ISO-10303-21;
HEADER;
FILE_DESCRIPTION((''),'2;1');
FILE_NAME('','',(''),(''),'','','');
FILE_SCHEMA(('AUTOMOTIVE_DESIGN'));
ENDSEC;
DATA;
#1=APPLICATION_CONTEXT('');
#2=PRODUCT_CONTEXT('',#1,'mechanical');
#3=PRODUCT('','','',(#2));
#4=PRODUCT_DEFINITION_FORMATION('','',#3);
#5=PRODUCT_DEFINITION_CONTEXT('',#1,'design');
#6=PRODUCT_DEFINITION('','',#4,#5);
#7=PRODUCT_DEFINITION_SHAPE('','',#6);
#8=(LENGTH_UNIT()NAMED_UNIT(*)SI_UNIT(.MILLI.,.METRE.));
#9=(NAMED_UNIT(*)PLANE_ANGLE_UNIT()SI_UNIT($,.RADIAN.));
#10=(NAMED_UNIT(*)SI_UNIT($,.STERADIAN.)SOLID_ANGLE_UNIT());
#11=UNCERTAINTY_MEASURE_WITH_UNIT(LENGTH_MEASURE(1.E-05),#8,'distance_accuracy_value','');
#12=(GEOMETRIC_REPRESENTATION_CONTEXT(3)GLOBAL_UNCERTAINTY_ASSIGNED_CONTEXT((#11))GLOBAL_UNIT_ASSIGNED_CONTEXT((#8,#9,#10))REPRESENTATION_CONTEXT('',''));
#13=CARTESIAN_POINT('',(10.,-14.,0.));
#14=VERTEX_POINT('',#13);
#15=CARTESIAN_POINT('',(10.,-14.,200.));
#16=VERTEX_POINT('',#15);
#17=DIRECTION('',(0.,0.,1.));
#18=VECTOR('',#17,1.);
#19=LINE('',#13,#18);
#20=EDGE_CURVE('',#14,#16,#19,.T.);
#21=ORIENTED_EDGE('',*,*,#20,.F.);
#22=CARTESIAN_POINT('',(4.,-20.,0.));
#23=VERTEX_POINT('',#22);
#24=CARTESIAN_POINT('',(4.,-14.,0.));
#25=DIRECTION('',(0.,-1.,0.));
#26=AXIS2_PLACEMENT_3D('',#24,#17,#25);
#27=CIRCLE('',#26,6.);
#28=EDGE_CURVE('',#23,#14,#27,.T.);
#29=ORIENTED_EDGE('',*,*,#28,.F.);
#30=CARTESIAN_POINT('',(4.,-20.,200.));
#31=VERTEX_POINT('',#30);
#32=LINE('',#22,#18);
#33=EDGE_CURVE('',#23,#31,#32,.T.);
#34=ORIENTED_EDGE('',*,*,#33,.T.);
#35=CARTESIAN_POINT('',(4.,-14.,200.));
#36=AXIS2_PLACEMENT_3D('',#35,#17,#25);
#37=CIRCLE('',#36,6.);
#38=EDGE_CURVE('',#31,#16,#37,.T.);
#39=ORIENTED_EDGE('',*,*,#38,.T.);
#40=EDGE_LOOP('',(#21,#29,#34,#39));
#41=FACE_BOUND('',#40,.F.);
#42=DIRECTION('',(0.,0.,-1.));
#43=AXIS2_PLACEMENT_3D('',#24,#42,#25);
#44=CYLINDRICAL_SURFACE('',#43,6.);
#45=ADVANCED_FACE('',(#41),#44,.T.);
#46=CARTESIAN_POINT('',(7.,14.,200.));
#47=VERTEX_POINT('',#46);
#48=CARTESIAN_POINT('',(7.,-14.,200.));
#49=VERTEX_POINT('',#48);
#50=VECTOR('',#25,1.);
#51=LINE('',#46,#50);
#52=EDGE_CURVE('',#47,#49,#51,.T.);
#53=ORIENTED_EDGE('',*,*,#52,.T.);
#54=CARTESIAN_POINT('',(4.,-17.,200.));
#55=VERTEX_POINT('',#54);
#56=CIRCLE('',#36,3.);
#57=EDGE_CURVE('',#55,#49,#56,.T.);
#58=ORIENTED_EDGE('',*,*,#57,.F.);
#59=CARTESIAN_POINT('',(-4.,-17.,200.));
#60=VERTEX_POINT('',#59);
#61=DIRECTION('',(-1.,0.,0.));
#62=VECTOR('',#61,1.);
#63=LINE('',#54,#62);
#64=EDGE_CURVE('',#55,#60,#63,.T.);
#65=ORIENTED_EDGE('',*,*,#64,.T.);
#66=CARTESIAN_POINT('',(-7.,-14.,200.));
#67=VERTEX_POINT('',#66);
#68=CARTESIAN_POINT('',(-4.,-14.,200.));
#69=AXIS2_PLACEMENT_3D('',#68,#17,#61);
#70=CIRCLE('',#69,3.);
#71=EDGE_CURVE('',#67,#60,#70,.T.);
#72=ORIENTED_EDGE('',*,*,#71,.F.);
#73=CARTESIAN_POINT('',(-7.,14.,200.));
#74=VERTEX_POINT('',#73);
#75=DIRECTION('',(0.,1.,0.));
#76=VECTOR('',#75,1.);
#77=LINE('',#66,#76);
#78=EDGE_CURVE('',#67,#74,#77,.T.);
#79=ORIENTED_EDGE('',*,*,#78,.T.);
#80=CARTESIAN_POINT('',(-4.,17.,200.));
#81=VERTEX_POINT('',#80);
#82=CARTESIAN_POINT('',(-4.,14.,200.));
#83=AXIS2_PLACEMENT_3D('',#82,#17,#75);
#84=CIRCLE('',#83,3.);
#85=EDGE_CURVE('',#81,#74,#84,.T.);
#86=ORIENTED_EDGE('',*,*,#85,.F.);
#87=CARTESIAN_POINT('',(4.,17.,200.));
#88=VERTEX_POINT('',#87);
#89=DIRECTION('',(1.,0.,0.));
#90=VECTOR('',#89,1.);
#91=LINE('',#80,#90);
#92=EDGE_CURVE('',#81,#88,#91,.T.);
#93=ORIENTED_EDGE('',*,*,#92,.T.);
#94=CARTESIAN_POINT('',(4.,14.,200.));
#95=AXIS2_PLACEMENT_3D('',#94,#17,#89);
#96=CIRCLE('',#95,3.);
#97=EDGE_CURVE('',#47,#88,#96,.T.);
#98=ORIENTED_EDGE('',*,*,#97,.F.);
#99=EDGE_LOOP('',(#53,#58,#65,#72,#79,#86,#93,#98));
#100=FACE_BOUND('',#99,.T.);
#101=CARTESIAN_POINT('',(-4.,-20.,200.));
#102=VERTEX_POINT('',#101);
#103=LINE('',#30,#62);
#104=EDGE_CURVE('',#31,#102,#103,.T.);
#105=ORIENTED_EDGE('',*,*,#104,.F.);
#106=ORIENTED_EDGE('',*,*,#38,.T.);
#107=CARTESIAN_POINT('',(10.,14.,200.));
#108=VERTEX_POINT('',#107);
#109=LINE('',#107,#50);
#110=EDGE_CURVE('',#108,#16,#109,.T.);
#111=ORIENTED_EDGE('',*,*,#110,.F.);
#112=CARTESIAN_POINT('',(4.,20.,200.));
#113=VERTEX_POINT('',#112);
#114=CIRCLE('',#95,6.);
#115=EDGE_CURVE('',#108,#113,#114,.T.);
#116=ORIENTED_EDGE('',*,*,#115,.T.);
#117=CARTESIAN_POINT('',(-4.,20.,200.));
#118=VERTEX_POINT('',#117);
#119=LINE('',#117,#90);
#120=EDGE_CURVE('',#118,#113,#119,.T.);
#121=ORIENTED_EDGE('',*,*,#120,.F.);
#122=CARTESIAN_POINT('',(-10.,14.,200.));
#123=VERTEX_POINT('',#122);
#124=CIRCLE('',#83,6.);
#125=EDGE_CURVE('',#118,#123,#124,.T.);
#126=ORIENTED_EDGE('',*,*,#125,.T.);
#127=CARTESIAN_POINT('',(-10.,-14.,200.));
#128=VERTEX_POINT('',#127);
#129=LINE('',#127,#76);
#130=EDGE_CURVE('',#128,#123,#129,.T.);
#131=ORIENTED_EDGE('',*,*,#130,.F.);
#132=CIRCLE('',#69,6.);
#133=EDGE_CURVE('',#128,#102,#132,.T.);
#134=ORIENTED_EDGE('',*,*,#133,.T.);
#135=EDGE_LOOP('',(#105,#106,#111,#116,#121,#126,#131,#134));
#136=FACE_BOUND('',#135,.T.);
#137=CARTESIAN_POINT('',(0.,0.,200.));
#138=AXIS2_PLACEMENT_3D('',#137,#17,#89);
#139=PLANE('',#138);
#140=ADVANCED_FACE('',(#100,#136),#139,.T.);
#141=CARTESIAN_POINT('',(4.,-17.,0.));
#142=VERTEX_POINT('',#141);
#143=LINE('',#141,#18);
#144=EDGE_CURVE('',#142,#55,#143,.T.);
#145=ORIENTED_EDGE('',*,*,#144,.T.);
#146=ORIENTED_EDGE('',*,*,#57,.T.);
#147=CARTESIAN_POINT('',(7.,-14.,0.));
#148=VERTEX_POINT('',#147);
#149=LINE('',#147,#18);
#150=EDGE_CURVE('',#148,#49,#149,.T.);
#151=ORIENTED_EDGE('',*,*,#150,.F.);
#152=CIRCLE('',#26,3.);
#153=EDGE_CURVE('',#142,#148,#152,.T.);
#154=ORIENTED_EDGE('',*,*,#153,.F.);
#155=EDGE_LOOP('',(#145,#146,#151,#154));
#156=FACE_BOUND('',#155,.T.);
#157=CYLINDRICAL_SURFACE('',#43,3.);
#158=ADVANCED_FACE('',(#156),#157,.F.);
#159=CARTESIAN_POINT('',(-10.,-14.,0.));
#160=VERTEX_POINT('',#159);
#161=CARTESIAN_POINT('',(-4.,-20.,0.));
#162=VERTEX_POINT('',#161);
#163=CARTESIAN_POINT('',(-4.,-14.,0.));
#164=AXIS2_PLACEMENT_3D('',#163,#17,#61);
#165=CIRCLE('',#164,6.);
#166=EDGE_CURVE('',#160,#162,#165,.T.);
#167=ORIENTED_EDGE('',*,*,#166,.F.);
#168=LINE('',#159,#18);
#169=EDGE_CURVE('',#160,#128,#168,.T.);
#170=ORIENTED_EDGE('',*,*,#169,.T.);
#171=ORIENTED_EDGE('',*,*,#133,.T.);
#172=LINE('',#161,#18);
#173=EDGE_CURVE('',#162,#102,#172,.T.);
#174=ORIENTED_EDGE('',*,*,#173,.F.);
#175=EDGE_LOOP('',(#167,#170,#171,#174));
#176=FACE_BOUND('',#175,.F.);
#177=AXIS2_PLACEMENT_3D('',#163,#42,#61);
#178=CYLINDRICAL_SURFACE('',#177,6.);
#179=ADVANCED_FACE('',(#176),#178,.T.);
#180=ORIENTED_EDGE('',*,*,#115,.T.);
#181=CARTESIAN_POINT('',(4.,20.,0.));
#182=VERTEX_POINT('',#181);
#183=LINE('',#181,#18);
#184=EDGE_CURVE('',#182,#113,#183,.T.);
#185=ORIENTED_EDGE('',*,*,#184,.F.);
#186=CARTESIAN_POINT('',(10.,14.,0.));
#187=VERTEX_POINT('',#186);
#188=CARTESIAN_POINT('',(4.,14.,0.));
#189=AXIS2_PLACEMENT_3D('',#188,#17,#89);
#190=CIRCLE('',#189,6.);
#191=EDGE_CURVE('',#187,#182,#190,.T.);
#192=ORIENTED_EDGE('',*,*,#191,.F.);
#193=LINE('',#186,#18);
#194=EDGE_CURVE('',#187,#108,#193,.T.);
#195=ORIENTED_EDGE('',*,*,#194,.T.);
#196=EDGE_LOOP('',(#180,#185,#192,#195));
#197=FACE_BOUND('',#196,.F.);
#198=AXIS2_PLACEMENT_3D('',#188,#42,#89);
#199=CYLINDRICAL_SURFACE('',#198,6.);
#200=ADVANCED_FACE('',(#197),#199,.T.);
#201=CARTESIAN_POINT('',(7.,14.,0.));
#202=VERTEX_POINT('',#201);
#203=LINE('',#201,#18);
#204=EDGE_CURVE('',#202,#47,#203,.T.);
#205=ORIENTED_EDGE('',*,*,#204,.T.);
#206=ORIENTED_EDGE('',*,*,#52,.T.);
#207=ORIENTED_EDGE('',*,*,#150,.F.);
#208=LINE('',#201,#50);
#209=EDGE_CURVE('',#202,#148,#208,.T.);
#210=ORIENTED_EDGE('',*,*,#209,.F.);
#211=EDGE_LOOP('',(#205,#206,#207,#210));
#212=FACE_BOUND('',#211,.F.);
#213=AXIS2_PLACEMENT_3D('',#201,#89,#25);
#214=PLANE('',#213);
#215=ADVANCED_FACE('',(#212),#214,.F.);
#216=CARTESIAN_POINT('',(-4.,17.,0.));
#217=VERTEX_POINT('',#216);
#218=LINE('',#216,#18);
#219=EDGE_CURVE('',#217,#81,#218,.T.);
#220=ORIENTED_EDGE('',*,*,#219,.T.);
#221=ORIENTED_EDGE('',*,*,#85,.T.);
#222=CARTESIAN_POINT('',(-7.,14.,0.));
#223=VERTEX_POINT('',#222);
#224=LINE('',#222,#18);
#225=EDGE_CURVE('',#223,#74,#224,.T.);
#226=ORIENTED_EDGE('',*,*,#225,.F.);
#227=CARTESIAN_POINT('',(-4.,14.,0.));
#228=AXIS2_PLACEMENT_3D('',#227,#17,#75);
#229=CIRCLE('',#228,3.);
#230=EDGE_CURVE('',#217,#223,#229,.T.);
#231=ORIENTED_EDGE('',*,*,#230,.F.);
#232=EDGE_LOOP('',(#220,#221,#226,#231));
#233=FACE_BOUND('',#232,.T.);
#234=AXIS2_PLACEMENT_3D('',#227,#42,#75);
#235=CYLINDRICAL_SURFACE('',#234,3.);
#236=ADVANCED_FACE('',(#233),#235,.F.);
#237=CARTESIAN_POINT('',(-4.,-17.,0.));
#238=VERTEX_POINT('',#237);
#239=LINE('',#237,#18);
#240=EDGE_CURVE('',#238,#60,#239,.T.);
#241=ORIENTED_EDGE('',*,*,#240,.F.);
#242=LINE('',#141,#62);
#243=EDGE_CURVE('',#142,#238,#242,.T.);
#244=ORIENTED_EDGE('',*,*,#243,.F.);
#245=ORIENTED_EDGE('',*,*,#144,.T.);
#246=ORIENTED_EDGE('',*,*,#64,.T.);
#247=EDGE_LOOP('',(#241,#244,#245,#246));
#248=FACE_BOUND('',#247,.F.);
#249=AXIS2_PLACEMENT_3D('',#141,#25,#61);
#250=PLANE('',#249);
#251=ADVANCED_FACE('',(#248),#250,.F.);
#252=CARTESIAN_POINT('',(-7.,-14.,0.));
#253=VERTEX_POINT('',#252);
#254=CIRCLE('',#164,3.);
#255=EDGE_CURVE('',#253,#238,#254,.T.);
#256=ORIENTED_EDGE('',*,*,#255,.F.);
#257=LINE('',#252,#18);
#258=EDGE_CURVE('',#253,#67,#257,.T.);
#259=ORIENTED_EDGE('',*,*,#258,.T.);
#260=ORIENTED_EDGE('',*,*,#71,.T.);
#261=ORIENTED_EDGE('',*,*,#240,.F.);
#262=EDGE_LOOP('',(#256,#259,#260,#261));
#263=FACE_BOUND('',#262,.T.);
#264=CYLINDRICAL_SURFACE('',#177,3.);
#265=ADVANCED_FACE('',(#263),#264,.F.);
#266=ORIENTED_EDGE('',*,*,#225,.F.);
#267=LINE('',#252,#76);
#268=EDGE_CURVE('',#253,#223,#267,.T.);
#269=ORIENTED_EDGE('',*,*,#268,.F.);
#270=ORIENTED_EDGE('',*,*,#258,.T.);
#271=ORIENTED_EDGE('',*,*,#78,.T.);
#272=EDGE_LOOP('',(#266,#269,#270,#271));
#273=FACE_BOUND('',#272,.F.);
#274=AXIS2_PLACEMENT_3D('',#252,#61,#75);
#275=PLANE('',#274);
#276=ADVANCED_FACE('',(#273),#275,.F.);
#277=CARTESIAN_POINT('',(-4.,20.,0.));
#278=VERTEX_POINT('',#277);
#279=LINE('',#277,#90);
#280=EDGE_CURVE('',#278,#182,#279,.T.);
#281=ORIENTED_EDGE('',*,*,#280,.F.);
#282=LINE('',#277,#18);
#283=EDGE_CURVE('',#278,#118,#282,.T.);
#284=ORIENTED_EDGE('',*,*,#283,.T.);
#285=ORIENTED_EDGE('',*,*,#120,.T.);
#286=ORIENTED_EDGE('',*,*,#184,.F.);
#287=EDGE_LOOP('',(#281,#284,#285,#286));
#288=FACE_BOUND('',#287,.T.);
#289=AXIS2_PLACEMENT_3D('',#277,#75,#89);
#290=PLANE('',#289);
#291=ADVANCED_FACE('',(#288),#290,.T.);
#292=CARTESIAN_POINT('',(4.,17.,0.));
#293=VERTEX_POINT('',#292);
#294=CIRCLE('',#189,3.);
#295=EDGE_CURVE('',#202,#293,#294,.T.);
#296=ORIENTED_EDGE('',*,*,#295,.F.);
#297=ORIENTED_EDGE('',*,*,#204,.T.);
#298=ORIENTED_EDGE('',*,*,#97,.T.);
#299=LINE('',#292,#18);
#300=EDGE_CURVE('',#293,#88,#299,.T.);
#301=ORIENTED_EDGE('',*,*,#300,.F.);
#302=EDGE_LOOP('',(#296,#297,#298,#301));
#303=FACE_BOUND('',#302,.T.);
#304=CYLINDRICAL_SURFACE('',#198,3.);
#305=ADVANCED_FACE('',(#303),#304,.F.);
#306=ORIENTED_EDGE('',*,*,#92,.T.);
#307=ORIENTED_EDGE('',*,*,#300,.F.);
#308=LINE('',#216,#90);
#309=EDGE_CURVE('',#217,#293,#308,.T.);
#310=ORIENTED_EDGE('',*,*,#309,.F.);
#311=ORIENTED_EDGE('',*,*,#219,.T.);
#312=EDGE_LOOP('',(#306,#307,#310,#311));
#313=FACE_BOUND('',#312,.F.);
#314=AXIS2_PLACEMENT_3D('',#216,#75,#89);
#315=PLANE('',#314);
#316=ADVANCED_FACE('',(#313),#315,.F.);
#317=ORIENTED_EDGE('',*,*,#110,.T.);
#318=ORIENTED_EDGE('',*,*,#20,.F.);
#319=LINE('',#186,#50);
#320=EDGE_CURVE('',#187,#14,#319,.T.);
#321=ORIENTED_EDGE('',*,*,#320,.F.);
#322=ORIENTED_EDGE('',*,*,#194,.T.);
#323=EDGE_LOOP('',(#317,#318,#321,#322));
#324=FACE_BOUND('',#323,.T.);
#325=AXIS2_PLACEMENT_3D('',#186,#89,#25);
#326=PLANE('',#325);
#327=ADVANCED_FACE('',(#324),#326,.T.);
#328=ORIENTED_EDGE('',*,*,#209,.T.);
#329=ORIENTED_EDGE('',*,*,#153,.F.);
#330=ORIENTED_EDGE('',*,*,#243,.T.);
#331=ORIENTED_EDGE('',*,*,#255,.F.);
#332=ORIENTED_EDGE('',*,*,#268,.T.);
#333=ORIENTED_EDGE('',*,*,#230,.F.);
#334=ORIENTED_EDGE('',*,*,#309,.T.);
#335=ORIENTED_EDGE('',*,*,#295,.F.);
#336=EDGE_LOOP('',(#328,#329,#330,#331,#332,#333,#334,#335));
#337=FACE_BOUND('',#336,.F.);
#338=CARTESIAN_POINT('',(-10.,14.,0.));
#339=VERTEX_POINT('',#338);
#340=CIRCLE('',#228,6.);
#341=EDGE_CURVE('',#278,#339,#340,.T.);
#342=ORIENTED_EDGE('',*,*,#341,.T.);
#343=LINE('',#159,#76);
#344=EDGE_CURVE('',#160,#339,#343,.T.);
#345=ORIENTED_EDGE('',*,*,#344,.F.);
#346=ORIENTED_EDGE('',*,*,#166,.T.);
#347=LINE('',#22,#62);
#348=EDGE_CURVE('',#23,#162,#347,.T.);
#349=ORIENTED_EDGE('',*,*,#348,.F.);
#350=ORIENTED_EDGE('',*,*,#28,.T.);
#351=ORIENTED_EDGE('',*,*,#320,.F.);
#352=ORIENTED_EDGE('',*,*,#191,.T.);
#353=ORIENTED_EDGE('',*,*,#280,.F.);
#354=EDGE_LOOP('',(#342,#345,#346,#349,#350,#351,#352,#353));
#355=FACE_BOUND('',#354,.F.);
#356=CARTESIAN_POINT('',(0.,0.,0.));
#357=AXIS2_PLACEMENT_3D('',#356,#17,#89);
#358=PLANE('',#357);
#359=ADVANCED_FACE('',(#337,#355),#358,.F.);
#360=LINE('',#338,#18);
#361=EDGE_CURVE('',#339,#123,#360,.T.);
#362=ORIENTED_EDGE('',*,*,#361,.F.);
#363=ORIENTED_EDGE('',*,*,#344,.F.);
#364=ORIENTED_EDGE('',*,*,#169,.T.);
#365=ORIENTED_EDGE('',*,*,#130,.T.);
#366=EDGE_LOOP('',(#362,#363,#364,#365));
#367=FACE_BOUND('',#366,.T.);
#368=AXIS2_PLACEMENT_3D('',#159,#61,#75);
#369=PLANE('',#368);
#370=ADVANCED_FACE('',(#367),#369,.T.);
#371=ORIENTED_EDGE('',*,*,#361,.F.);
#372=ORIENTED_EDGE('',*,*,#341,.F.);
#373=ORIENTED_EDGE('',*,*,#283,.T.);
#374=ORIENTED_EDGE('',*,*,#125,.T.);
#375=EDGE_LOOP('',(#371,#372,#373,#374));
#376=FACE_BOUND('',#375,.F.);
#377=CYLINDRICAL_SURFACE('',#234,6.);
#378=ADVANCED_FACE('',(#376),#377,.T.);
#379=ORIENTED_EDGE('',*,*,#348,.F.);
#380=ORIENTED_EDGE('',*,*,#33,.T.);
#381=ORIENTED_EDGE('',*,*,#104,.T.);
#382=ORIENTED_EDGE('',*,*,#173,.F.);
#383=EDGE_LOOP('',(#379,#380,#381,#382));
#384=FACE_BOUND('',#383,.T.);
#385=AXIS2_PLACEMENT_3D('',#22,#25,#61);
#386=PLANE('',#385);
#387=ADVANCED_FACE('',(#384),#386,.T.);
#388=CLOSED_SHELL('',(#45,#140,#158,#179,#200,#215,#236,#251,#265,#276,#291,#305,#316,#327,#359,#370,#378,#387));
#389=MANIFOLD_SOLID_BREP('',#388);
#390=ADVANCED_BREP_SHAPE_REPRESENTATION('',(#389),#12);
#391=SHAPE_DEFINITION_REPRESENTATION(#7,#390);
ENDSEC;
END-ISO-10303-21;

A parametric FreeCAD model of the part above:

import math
import FreeCAD as App
import Part
import Sketcher
Q = App.Units.Quantity

doc = App.newDocument("Part")
params = doc.addObject("Spreadsheet::Sheet", "Params")
for row, (alias, value) in enumerate([
    ("sketch1_radius", "6 mm"),
    ("sketch1_radius2", "3 mm"),
    ("pad1_length", "200 mm"),
], start=1):
    params.set(f"A{row}", alias)
    params.set(f"B{row}", "=" + value)
    params.setAlias(f"B{row}", alias)

body = doc.addObject("PartDesign::Body", "Body")

# Sketch on XY plane
sketch1 = body.newObject("Sketcher::SketchObject", "Sketch")
sketch1.AttachmentSupport = (doc.getObject("XY_Plane"), [""])
sketch1.MapMode = "FlatFace"
sketch1.addGeometry(Part.LineSegment(App.Vector(-10, 14, 0), App.Vector(-10, -14, 0)), False)
sketch1.addGeometry(Part.ArcOfCircle(Part.Circle(App.Vector(-4, -14, 0), App.Vector(0, 0, 1), 6), math.radians(180), math.radians(270)), False)
sketch1.addGeometry(Part.LineSegment(App.Vector(-4, -20, 0), App.Vector(4, -20, 0)), False)
sketch1.addGeometry(Part.ArcOfCircle(Part.Circle(App.Vector(4, -14, 0), App.Vector(0, 0, 1), 6), math.radians(-90), math.radians(0)), False)
sketch1.addGeometry(Part.LineSegment(App.Vector(10, -14, 0), App.Vector(10, 14, 0)), False)
sketch1.addGeometry(Part.ArcOfCircle(Part.Circle(App.Vector(4, 14, 0), App.Vector(0, 0, 1), 6), math.radians(0), math.radians(90)), False)
sketch1.addGeometry(Part.LineSegment(App.Vector(4, 20, 0), App.Vector(-4, 20, 0)), False)
sketch1.addGeometry(Part.ArcOfCircle(Part.Circle(App.Vector(-4, 14, 0), App.Vector(0, 0, 1), 6), math.radians(90), math.radians(180)), False)
sketch1.addGeometry(Part.ArcOfCircle(Part.Circle(App.Vector(-4, 14, 0), App.Vector(0, 0, 1), 3), math.radians(90), math.radians(180)), False)
sketch1.addGeometry(Part.LineSegment(App.Vector(-4, 17, 0), App.Vector(4, 17, 0)), False)
sketch1.addGeometry(Part.ArcOfCircle(Part.Circle(App.Vector(4, 14, 0), App.Vector(0, 0, 1), 3), math.radians(0), math.radians(90)), False)
sketch1.addGeometry(Part.LineSegment(App.Vector(7, 14, 0), App.Vector(7, -14, 0)), False)
sketch1.addGeometry(Part.ArcOfCircle(Part.Circle(App.Vector(4, -14, 0), App.Vector(0, 0, 1), 3), math.radians(-90), math.radians(0)), False)
sketch1.addGeometry(Part.LineSegment(App.Vector(4, -17, 0), App.Vector(-4, -17, 0)), False)
sketch1.addGeometry(Part.ArcOfCircle(Part.Circle(App.Vector(-4, -14, 0), App.Vector(0, 0, 1), 3), math.radians(180), math.radians(270)), False)
sketch1.addGeometry(Part.LineSegment(App.Vector(-7, -14, 0), App.Vector(-7, 14, 0)), False)
sketch1.addConstraint(Sketcher.Constraint("Tangent", 0, 2, 1, 1))
sketch1.addConstraint(Sketcher.Constraint("Tangent", 1, 2, 2, 1))
sketch1.addConstraint(Sketcher.Constraint("Tangent", 2, 2, 3, 1))
sketch1.addConstraint(Sketcher.Constraint("Tangent", 3, 2, 4, 1))
sketch1.addConstraint(Sketcher.Constraint("Tangent", 4, 2, 5, 1))
sketch1.addConstraint(Sketcher.Constraint("Tangent", 5, 2, 6, 1))
sketch1.addConstraint(Sketcher.Constraint("Tangent", 6, 2, 7, 1))
sketch1.addConstraint(Sketcher.Constraint("Tangent", 7, 2, 0, 1))
sketch1.addConstraint(Sketcher.Constraint("Tangent", 8, 1, 9, 1))
sketch1.addConstraint(Sketcher.Constraint("Tangent", 9, 2, 10, 2))
sketch1.addConstraint(Sketcher.Constraint("Tangent", 10, 1, 11, 1))
sketch1.addConstraint(Sketcher.Constraint("Tangent", 11, 2, 12, 2))
sketch1.addConstraint(Sketcher.Constraint("Tangent", 12, 1, 13, 1))
sketch1.addConstraint(Sketcher.Constraint("Tangent", 13, 2, 14, 2))
sketch1.addConstraint(Sketcher.Constraint("Tangent", 14, 1, 15, 1))
sketch1.addConstraint(Sketcher.Constraint("Tangent", 15, 2, 8, 2))
sketch1.addConstraint(Sketcher.Constraint("Vertical", 0))
sketch1.addConstraint(Sketcher.Constraint("Horizontal", 2))
sketch1.addConstraint(Sketcher.Constraint("Vertical", 4))
sketch1.addConstraint(Sketcher.Constraint("Horizontal", 6))
sketch1.addConstraint(Sketcher.Constraint("Horizontal", 9))
sketch1.addConstraint(Sketcher.Constraint("Vertical", 11))
sketch1.addConstraint(Sketcher.Constraint("Horizontal", 13))
sketch1.addConstraint(Sketcher.Constraint("Vertical", 15))
sketch1.addConstraint(Sketcher.Constraint("Coincident", 8, 3, 7, 3))
sketch1.addConstraint(Sketcher.Constraint("Coincident", 10, 3, 5, 3))
sketch1.addConstraint(Sketcher.Constraint("Coincident", 12, 3, 3, 3))
sketch1.addConstraint(Sketcher.Constraint("Equal", 1, 3))
sketch1.addConstraint(Sketcher.Constraint("Equal", 3, 5))
sketch1.addConstraint(Sketcher.Constraint("Equal", 5, 7))
sketch1.addConstraint(Sketcher.Constraint("Equal", 12, 14))
sketch1.addConstraint(Sketcher.Constraint("Symmetric", 1, 3, 5, 3, -1, 1))
sketch1.addConstraint(Sketcher.Constraint("Radius", 1, Q("6 mm")))
sketch1.addConstraint(Sketcher.Constraint("Radius", 8, Q("3 mm")))
sketch1.addConstraint(Sketcher.Constraint("DistanceX", 0, 2, -1, 1, Q("10 mm")))
sketch1.addConstraint(Sketcher.Constraint("DistanceY", 1, 2, -1, 1, Q("20 mm")))
sketch1.setExpression("Constraints[32]", "Params.sketch1_radius")
sketch1.setExpression("Constraints[33]", "Params.sketch1_radius2")
pad1 = body.newObject("PartDesign::Pad", "Pad")
pad1.Profile = sketch1
pad1.setExpression("Length", "Params.pad1_length")

doc.recompute()
